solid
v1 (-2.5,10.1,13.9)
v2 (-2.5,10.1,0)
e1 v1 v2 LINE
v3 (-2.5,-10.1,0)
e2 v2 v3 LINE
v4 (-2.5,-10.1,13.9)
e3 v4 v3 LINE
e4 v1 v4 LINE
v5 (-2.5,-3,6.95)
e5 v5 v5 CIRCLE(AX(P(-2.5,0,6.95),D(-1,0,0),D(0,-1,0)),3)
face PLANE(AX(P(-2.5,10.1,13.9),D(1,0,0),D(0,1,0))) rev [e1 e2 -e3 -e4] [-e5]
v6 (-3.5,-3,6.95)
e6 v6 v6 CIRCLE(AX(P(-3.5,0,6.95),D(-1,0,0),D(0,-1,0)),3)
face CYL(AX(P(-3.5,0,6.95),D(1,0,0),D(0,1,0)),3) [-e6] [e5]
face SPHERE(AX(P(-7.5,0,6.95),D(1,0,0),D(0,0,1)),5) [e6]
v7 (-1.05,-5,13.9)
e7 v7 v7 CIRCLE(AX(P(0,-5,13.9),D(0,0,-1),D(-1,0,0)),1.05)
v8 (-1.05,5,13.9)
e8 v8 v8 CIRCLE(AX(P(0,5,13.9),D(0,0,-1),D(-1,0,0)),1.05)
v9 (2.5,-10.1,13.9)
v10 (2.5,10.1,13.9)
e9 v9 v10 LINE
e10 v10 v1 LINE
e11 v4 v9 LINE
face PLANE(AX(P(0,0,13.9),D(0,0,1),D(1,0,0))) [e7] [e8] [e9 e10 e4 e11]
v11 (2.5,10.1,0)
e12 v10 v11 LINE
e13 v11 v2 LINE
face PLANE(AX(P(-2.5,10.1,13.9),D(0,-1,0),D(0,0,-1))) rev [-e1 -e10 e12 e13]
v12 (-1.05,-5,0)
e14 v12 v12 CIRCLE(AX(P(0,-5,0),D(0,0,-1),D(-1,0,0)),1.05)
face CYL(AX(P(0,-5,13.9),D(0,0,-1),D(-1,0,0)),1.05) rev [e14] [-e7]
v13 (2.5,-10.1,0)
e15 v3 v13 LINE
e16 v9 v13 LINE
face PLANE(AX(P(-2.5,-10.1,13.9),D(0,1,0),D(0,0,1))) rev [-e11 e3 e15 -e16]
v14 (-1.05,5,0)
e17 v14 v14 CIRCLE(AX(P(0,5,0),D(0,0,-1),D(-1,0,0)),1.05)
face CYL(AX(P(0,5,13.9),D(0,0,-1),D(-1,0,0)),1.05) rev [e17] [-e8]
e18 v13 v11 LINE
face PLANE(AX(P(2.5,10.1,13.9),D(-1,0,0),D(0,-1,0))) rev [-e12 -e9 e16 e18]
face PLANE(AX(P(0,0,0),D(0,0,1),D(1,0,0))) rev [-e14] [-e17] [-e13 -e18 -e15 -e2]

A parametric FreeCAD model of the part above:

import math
import FreeCAD as App
import Part
import Sketcher

V = App.Vector

doc = App.newDocument("Part")
body = doc.addObject("PartDesign::Body", "Body")

sketch1 = body.newObject("Sketcher::SketchObject", "Sketch")
sketch1.AttachmentSupport = (doc.getObject("XY_Plane"), [""])
sketch1.MapMode = "FlatFace"
sketch1.addGeometry([
    Part.LineSegment(V(-2, 10, 0), V(-2, -10, 0)),
    Part.LineSegment(V(-2, -10, 0), V(2, -10, 0)),
    Part.LineSegment(V(2, -10, 0), V(2, 10, 0)),
    Part.LineSegment(V(2, 10, 0), V(-2, 10, 0)),
], False)
sketch1.addConstraint([
    Sketcher.Constraint("Coincident", 0, 2, 1, 1),
    Sketcher.Constraint("Coincident", 1, 2, 2, 1),
    Sketcher.Constraint("Coincident", 2, 2, 3, 1),
    Sketcher.Constraint("Coincident", 3, 2, 0, 1),
    Sketcher.Constraint("Vertical", 0),
    Sketcher.Constraint("Horizontal", 1),
    Sketcher.Constraint("Vertical", 2),
    Sketcher.Constraint("Horizontal", 3),
    Sketcher.Constraint("Symmetric", 0, 2, 2, 2, -1, 1),
    Sketcher.Constraint("DistanceX", 1, 1, 1, 2, 5.0),
    Sketcher.Constraint("DistanceY", 0, 2, 0, 1, 20.2),
])
pad1 = body.newObject("PartDesign::Pad", "Pad")
pad1.Profile = sketch1
pad1.Length = 13.9

sketch2 = body.newObject("Sketcher::SketchObject", "Sketch001")
sketch2.AttachmentSupport = (doc.getObject("XY_Plane"), [""])
sketch2.MapMode = "FlatFace"
sketch2.addGeometry([
    Part.Circle(V(0, 5, 0), V(0, 0, 1), 1.1),
    Part.Circle(V(0, -5, 0), V(0, 0, 1), 1.1),
], False)
sketch2.addConstraint([
    Sketcher.Constraint("Equal", 0, 1),
    Sketcher.Constraint("Symmetric", 0, 3, 1, 3, -1, 1),
    Sketcher.Constraint("PointOnObject", 0, 3, -2),
    Sketcher.Constraint("Diameter", 0, 2.1),
    Sketcher.Constraint("DistanceY", -1, 1, 0, 3, 5.0),
])
pocket1 = body.newObject("PartDesign::Pocket", "Pocket")
pocket1.Profile = sketch2
pocket1.Type = "ThroughAll"
pocket1.Reversed = True

sketch3 = body.newObject("Sketcher::SketchObject", "Sketch002")
sketch3.AttachmentSupport = (doc.getObject("YZ_Plane"), [""])
sketch3.MapMode = "FlatFace"
sketch3.AttachmentOffset = App.Placement(V(0, 0, -2.5), App.Rotation())
sketch3.addGeometry(Part.Circle(V(0, 7, 0), V(0, 0, 1), 3), False)
sketch3.addConstraint([
    Sketcher.Constraint("PointOnObject", 0, 3, -2),
    Sketcher.Constraint("Diameter", 0, 6.0),
    Sketcher.Constraint("DistanceY", -1, 1, 0, 3, 6.95),
])
pad2 = body.newObject("PartDesign::Pad", "Pad001")
pad2.Profile = sketch3
pad2.Length = 1
pad2.Reversed = True

sketch4 = body.newObject("Sketcher::SketchObject", "Sketch003")
sketch4.AttachmentSupport = (doc.getObject("XZ_Plane"), [""])
sketch4.MapMode = "FlatFace"
sketch4.addGeometry([
    Part.LineSegment(V(-12.5, 7, 0), V(-3.5, 7, 0)),
    Part.LineSegment(V(-3.5, 7, 0), V(-3.5, 9.9, 0)),
    Part.ArcOfCircle(Part.Circle(V(-7.5, 7, 0), V(0, 0, 1), 5), math.radians(37), math.radians(180)),
], False)
sketch4.addGeometry(Part.LineSegment(V(-3.5, 7, 0), V(-12.5, 7, 0)), True)
sketch4.addConstraint([
    Sketcher.Constraint("Coincident", 0, 2, 1, 1),
    Sketcher.Constraint("Coincident", 1, 2, 2, 1),
    Sketcher.Constraint("Coincident", 2, 2, 0, 1),
    Sketcher.Constraint("Horizontal", 0),
    Sketcher.Constraint("Vertical", 1),
    Sketcher.Constraint("Horizontal", 3),
    Sketcher.Constraint("Coincident", 3, 1, 0, 2),
    Sketcher.Constraint("Horizontal", 2, 3, 0, 2),
    Sketcher.Constraint("Equal", 0, 3),
    Sketcher.Constraint("Radius", 2, 5.0),
    Sketcher.Constraint("DistanceX", 0, 1, 0, 2, 9.0),
    Sketcher.Constraint("DistanceX", 2, 3, -1, 1, 7.5),
    Sketcher.Constraint("DistanceY", -1, 1, 2, 3, 6.95),
])
revolution = body.newObject("PartDesign::Revolution", "Revolution")
revolution.Profile = sketch4
revolution.ReferenceAxis = (sketch4, ["Axis0"])
revolution.Angle = 360

doc.recompute()
